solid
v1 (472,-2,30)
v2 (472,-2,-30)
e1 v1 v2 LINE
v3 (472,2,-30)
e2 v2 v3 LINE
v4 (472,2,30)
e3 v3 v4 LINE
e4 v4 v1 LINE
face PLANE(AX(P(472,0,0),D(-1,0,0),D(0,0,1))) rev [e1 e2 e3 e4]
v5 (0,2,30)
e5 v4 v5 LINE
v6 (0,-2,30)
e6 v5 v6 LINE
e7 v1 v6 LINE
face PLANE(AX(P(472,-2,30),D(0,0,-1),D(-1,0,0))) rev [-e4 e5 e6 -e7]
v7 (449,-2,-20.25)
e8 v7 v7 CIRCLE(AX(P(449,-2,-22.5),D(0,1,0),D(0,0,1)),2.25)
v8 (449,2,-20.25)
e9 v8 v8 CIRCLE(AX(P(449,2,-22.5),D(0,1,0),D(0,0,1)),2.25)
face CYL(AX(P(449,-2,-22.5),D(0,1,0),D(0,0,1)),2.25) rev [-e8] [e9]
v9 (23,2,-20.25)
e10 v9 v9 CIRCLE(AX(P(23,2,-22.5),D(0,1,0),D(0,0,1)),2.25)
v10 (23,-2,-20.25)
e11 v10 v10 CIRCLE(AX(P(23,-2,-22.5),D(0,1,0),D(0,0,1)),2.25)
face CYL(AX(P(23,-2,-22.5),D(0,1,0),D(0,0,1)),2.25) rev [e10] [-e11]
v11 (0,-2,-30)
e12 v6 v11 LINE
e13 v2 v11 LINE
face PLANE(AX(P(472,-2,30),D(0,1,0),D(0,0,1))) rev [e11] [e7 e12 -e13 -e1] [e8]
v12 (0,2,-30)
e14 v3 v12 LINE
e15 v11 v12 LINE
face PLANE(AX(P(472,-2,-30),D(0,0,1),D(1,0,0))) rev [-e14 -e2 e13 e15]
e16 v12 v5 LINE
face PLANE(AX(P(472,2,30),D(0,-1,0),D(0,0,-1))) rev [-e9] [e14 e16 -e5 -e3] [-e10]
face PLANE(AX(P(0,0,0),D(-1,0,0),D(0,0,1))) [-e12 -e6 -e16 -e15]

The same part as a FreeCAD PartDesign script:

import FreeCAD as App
import Part
import Sketcher

V = App.Vector
Q = App.Units.Quantity

doc = App.newDocument("Part")
body = doc.addObject("PartDesign::Body", "Body")

# Sketch on YZ plane
sketch1 = body.newObject("Sketcher::SketchObject", "Sketch")
sketch1.AttachmentSupport = (doc.getObject("YZ_Plane"), [""])
sketch1.MapMode = "FlatFace"
sketch1.addGeometry(Part.LineSegment(V(2, 30, 0), V(-2, 30, 0)), False)
sketch1.addGeometry(Part.LineSegment(V(-2, 30, 0), V(-2, -30, 0)), False)
sketch1.addGeometry(Part.LineSegment(V(-2, -30, 0), V(2, -30, 0)), False)
sketch1.addGeometry(Part.LineSegment(V(2, -30, 0), V(2, 30, 0)), False)
sketch1.addConstraint(Sketcher.Constraint("Coincident", 0, 2, 1, 1))
sketch1.addConstraint(Sketcher.Constraint("Coincident", 1, 2, 2, 1))
sketch1.addConstraint(Sketcher.Constraint("Coincident", 2, 2, 3, 1))
sketch1.addConstraint(Sketcher.Constraint("Coincident", 3, 2, 0, 1))
sketch1.addConstraint(Sketcher.Constraint("Horizontal", 0))
sketch1.addConstraint(Sketcher.Constraint("Vertical", 1))
sketch1.addConstraint(Sketcher.Constraint("Horizontal", 2))
sketch1.addConstraint(Sketcher.Constraint("Vertical", 3))
sketch1.addConstraint(Sketcher.Constraint("Symmetric", 0, 2, 2, 2, -1, 1))
sketch1.addConstraint(Sketcher.Constraint("DistanceX", 0, 2, 0, 1, Q("4 mm")))
sketch1.addConstraint(Sketcher.Constraint("DistanceY", 1, 2, 1, 1, Q("60 mm")))
pad1 = body.newObject("PartDesign::Pad", "Pad")
pad1.Profile = sketch1
pad1.Length = 472

# Sketch on XZ plane
sketch2 = body.newObject("Sketcher::SketchObject", "Sketch001")
sketch2.AttachmentSupport = (doc.getObject("XZ_Plane"), [""])
sketch2.MapMode = "FlatFace"
sketch2.AttachmentOffset = App.Placement(V(0, 0, -2), App.Rotation())
sketch2.addGeometry(Part.Circle(V(23, -22.5, 0), V(0, 0, 1), 2.2), False)
sketch2.addGeometry(Part.Circle(V(449, -22.5, 0), V(0, 0, 1), 2.2), False)
sketch2.addConstraint(Sketcher.Constraint("Equal", 0, 1))
sketch2.addConstraint(Sketcher.Constraint("Horizontal", 0, 3, 1, 3))
sketch2.addConstraint(Sketcher.Constraint("Diameter", 0, Q("4.5 mm")))
sketch2.addConstraint(Sketcher.Constraint("DistanceX", -1, 1, 0, 3, Q("23 mm")))
sketch2.addConstraint(Sketcher.Constraint("DistanceX", -1, 1, 1, 3, Q("449 mm")))
sketch2.addConstraint(Sketcher.Constraint("DistanceY", 0, 3, -1, 1, Q("22.5 mm")))
pocket1 = body.newObject("PartDesign::Pocket", "Pocket")
pocket1.Profile = sketch2
pocket1.Type = "ThroughAll"
pocket1.Reversed = True

doc.recompute()
